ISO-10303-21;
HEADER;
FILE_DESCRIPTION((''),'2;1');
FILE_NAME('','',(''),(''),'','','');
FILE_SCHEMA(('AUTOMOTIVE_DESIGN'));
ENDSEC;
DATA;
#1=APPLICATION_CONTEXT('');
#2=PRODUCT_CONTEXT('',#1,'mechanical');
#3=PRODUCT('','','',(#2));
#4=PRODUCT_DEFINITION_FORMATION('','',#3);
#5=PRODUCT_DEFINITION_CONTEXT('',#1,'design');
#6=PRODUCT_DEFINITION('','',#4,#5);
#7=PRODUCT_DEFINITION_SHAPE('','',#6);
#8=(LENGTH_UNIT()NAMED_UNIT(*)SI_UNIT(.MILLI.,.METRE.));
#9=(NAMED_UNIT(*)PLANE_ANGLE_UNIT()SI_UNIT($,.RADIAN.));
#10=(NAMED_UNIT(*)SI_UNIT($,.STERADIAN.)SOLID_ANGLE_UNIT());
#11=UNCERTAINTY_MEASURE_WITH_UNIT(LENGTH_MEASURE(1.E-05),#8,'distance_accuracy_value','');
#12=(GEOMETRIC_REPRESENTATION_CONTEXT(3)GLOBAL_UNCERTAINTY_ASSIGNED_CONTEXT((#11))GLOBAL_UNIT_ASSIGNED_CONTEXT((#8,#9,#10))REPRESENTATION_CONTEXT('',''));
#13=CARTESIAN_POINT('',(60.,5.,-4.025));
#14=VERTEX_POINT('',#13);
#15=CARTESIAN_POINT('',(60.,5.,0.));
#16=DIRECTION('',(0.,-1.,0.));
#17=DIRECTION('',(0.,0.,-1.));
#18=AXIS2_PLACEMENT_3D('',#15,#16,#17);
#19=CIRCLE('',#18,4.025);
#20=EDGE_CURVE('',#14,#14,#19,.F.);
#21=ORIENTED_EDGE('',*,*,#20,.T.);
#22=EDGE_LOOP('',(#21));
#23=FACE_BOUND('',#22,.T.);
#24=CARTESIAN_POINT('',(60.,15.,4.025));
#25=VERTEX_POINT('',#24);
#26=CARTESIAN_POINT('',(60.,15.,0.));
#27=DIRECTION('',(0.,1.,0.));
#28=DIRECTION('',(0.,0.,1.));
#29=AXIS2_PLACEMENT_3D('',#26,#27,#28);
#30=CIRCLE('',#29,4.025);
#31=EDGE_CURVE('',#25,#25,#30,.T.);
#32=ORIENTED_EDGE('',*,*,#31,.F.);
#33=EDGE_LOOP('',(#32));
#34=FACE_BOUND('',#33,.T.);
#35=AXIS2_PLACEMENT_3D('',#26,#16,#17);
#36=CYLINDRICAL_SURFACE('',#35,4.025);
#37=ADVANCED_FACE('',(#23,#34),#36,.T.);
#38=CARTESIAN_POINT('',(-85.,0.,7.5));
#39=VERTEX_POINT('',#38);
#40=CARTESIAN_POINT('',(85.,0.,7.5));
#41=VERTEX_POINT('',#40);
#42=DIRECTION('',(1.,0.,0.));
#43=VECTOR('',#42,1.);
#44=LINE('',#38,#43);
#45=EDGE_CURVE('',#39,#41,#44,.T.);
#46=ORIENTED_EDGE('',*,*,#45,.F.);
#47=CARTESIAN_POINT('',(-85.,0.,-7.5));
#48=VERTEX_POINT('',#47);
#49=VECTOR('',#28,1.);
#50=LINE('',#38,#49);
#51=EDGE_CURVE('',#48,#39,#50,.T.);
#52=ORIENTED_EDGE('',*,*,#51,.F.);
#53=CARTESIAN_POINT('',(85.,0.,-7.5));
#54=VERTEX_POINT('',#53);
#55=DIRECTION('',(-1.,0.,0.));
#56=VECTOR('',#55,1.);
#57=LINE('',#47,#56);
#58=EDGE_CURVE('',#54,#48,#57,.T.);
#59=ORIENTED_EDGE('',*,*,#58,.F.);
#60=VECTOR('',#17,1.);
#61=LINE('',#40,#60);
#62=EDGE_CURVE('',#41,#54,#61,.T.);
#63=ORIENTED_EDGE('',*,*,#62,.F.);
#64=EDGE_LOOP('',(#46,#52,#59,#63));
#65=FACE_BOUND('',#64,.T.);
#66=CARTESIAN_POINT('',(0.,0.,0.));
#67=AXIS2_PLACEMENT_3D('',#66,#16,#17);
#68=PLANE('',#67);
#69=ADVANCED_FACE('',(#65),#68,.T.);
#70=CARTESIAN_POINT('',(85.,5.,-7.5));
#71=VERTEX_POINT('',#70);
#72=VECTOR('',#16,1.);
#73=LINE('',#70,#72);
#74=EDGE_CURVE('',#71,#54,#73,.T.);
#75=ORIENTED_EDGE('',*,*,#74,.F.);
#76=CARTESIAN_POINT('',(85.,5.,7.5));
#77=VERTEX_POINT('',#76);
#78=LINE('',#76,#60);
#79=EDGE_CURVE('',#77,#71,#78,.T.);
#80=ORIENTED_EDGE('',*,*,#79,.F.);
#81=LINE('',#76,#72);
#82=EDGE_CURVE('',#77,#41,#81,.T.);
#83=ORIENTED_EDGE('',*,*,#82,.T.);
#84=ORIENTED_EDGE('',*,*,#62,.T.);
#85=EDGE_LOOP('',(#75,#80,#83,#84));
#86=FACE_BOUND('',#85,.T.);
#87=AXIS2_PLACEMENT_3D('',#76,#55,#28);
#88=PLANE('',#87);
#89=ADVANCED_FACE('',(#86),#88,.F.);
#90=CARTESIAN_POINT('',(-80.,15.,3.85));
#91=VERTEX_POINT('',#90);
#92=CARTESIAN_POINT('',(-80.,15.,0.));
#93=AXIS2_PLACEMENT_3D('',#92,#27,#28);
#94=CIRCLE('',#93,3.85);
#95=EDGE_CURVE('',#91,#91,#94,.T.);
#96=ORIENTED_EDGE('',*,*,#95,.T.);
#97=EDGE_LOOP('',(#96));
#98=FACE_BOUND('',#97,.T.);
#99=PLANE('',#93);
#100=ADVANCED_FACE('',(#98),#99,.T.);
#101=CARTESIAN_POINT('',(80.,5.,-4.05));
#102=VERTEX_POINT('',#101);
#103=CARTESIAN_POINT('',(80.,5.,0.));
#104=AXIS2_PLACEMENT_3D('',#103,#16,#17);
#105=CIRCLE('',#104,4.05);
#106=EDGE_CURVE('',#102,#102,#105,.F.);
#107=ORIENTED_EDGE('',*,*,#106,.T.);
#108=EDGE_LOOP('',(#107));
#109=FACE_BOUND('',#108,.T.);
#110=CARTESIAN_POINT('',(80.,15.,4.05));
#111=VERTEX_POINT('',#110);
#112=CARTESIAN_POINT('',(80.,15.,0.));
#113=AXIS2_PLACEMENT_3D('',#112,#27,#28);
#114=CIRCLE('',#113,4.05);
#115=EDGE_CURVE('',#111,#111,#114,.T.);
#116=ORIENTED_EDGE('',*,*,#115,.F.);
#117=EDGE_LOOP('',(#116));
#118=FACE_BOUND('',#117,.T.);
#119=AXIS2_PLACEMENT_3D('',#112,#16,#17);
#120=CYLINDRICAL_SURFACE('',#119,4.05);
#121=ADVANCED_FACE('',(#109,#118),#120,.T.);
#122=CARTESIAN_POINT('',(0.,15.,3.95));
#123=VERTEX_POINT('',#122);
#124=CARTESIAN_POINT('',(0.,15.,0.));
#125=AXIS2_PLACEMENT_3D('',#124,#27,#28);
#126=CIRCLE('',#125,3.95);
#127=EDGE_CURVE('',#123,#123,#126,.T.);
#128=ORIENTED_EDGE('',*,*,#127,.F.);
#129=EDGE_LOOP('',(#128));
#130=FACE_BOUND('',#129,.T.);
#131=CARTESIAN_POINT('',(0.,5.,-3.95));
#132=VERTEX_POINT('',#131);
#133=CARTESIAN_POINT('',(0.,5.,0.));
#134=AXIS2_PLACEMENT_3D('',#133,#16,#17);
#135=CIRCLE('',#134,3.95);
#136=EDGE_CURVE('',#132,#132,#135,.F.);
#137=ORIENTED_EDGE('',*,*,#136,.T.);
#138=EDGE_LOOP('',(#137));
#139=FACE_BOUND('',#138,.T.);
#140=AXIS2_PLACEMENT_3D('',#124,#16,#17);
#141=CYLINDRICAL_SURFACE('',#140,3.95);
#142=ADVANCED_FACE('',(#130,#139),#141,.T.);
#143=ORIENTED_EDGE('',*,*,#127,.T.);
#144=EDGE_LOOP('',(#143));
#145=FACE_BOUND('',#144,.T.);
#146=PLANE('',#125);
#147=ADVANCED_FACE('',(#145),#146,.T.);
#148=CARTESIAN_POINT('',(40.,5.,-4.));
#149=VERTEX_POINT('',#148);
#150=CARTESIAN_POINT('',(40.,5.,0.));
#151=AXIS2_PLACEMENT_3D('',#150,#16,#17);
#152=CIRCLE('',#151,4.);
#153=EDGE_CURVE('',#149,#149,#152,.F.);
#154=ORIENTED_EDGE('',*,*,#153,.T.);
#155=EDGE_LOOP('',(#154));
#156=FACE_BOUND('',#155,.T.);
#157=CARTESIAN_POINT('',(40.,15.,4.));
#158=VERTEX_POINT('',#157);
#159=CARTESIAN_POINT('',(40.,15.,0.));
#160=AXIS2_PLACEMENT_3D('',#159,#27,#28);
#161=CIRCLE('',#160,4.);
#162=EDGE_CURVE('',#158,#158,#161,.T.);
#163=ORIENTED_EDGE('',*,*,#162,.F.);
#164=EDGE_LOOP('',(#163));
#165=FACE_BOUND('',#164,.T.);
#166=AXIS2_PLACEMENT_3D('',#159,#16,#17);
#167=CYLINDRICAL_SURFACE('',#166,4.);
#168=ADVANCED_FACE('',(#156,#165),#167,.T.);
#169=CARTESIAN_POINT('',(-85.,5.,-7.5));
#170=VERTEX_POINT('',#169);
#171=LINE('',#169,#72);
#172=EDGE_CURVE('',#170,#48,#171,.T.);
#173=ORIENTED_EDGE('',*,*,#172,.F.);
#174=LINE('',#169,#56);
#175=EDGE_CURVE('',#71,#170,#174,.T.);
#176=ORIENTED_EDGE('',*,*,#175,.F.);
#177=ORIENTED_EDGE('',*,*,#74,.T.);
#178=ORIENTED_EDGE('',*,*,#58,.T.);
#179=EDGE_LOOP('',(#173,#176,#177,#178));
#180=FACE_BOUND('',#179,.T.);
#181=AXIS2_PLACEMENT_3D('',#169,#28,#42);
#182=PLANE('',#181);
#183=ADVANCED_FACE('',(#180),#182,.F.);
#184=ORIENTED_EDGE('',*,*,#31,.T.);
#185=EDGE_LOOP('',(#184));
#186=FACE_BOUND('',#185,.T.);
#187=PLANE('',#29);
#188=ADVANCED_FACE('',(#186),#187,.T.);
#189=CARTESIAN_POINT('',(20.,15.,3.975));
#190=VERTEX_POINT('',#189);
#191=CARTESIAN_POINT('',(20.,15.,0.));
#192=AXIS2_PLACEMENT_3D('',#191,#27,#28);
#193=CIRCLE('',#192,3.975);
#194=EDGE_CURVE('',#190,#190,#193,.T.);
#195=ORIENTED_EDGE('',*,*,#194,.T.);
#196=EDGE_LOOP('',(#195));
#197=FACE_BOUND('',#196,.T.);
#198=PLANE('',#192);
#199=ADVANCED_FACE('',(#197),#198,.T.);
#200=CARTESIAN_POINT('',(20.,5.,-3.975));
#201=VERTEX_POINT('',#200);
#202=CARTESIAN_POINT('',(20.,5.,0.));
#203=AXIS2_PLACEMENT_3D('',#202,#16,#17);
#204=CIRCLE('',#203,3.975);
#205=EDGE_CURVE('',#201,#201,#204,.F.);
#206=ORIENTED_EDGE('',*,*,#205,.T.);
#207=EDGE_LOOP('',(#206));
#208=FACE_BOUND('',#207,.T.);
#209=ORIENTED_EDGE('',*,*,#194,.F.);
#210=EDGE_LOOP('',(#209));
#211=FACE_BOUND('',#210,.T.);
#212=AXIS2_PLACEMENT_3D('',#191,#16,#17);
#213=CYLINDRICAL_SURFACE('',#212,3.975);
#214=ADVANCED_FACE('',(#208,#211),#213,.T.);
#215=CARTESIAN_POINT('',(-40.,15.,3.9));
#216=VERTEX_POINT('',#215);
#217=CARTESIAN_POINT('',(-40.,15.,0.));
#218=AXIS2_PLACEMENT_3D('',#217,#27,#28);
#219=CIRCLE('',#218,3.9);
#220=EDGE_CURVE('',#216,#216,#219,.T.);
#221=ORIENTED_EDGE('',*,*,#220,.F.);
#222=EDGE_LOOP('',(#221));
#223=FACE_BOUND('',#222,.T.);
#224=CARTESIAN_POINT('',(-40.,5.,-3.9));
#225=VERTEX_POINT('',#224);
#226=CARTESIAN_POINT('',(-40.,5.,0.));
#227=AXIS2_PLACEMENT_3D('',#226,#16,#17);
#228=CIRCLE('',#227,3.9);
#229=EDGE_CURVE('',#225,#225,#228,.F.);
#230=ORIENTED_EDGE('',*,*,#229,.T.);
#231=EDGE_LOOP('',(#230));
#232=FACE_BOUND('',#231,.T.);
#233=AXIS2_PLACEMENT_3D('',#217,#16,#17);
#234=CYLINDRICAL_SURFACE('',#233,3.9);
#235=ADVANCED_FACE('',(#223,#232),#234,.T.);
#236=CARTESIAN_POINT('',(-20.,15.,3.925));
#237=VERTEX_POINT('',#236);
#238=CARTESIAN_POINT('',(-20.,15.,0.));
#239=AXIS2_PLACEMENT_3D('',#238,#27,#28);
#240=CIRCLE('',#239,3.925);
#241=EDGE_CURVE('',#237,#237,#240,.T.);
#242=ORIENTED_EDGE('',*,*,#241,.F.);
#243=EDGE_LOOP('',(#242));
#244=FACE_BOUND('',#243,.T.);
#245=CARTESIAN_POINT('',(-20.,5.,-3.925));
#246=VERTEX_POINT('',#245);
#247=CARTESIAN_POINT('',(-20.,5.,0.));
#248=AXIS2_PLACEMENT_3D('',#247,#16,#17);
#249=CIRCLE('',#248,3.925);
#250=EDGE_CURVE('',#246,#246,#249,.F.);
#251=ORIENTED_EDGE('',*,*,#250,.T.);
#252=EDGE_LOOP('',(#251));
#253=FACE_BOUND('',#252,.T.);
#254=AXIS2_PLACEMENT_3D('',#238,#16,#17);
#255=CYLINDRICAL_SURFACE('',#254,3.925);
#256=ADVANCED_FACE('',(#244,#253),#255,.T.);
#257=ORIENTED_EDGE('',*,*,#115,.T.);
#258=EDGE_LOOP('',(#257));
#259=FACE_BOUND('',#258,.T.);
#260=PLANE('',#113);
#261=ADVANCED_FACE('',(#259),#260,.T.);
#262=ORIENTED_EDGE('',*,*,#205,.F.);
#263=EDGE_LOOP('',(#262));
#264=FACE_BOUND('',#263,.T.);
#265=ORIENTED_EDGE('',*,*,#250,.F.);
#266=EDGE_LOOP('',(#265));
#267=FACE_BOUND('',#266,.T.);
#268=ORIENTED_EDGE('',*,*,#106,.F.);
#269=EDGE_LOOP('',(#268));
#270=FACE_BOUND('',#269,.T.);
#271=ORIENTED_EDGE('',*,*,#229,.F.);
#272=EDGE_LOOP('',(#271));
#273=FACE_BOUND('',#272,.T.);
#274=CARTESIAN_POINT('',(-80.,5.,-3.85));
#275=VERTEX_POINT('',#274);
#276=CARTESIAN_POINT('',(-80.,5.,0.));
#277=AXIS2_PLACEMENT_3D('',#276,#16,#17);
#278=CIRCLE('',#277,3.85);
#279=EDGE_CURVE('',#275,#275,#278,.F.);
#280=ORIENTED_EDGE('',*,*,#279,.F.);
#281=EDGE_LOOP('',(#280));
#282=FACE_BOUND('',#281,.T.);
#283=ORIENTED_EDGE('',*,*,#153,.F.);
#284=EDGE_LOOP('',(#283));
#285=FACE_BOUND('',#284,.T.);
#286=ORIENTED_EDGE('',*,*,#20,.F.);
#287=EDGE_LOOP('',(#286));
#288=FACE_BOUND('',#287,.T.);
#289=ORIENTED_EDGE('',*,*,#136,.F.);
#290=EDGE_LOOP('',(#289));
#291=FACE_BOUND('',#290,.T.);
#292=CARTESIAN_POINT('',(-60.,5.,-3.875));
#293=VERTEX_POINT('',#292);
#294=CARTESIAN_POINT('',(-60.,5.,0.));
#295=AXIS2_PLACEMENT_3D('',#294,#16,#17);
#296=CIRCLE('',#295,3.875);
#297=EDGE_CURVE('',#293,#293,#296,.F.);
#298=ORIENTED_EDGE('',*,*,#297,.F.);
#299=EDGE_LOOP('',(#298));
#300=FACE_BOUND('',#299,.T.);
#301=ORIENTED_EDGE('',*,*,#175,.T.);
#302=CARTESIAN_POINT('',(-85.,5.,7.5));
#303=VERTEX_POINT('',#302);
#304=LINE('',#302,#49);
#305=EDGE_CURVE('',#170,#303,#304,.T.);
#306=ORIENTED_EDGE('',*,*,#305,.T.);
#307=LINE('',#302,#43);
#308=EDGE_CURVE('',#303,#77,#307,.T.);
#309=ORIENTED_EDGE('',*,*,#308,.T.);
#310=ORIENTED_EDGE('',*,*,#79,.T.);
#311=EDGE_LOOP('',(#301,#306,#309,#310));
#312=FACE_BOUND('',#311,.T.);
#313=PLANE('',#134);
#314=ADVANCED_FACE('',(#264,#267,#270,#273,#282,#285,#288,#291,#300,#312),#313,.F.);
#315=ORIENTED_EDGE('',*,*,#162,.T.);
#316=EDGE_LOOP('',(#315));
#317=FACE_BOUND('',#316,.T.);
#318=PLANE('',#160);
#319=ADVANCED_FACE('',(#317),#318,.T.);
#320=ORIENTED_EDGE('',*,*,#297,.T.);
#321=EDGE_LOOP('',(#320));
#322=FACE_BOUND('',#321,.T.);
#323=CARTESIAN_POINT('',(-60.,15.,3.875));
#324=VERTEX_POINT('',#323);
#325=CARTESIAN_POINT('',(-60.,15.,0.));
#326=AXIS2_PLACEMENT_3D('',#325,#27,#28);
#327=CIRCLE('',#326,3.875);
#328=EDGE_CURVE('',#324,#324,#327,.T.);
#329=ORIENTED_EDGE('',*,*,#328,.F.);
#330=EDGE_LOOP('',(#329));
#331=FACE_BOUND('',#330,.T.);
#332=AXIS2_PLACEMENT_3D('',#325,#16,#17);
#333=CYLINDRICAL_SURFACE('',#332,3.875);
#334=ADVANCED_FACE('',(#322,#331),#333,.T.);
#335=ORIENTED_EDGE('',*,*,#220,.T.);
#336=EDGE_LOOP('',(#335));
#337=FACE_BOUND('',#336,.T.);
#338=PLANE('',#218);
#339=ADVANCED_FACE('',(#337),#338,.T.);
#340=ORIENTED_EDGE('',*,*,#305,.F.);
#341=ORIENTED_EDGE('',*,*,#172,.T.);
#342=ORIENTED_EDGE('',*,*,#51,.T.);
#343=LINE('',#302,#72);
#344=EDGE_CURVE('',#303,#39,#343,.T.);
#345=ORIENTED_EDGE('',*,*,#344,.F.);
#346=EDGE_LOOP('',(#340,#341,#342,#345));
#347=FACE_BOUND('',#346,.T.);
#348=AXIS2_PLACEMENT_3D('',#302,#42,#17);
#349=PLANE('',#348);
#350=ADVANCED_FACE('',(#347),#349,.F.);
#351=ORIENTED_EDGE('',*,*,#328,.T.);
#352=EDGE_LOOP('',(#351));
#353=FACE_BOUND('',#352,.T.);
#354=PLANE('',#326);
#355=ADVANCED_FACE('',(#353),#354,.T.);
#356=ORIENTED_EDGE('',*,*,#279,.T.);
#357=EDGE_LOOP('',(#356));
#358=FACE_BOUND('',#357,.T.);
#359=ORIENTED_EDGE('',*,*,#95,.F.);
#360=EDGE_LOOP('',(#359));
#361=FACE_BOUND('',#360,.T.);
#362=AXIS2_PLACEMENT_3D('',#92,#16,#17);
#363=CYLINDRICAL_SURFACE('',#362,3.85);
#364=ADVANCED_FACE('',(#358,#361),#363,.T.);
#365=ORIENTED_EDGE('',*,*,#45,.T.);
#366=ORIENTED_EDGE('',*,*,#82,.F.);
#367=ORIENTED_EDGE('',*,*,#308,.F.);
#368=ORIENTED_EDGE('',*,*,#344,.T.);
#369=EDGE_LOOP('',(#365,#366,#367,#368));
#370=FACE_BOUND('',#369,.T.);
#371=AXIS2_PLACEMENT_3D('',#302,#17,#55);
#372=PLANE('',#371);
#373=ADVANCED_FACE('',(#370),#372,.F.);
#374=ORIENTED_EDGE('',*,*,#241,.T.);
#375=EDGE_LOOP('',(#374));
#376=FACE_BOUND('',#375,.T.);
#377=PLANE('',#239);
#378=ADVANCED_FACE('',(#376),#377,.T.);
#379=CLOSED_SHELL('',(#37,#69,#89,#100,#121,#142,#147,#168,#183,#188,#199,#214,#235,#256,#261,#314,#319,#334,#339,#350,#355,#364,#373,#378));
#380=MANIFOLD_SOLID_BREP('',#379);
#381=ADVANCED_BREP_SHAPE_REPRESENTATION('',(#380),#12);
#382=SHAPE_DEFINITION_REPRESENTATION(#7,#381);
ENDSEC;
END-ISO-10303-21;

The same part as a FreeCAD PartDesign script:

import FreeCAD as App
import Part
import Sketcher

V = App.Vector
Q = App.Units.Quantity


def add_polygon(sketch, points):
    """Adds a closed chain of lines whose ends are joined by coincident constraints."""
    first, n = sketch.GeometryCount, len(points)
    for a, b in zip(points, points[1:] + points[:1]):
        sketch.addGeometry(Part.LineSegment(App.Vector(*a, 0), App.Vector(*b, 0)), False)
    for i in range(n):
        sketch.addConstraint(Sketcher.Constraint("Coincident", first + i, 2, first + (i + 1) % n, 1))

doc = App.newDocument("Part")
body = doc.addObject("PartDesign::Body", "Body")

sketch1 = body.newObject("Sketcher::SketchObject", "Sketch")
sketch1.AttachmentSupport = (doc.getObject("XZ_Plane"), [""])
sketch1.MapMode = "FlatFace"
add_polygon(sketch1, [(-85, -8), (-85, 8), (85, 8), (85, -8)])
sketch1.addConstraint([
    Sketcher.Constraint("Vertical", 0),
    Sketcher.Constraint("Horizontal", 1),
    Sketcher.Constraint("Vertical", 2),
    Sketcher.Constraint("Horizontal", 3),
    Sketcher.Constraint("Symmetric", 0, 2, 2, 2, -1, 1),
    Sketcher.Constraint("DistanceX", 1, 1, 1, 2, Q("170 mm")),
    Sketcher.Constraint("DistanceY", 0, 1, 0, 2, Q("15 mm")),
])
pad1 = body.newObject("PartDesign::Pad", "Pad")
pad1.Profile = sketch1
pad1.Length = 5
pad1.Reversed = True

sketch2 = body.newObject("Sketcher::SketchObject", "Sketch001")
sketch2.AttachmentSupport = (doc.getObject("XZ_Plane"), [""])
sketch2.MapMode = "FlatFace"
sketch2.AttachmentOffset = App.Placement(V(0, 0, -5), App.Rotation())
sketch2.addGeometry([
    Part.Circle(V(-80, 0, 0), V(0, 0, 1), 3.9),
    Part.Circle(V(-60, 0, 0), V(0, 0, 1), 3.9),
    Part.Circle(V(-40, 0, 0), V(0, 0, 1), 3.9),
    Part.Circle(V(-20, 0, 0), V(0, 0, 1), 3.9),
    Part.Circle(V(0, 0, 0), V(0, 0, 1), 4),
    Part.Circle(V(20, 0, 0), V(0, 0, 1), 4),
    Part.Circle(V(40, 0, 0), V(0, 0, 1), 4),
    Part.Circle(V(60, 0, 0), V(0, 0, 1), 4),
    Part.Circle(V(80, 0, 0), V(0, 0, 1), 4),
], False)
sketch2.addConstraint([
    Sketcher.Constraint("Coincident", 4, 3, -1, 1),
    Sketcher.Constraint("Symmetric", 3, 3, 5, 3, -1, 1),
    Sketcher.Constraint("Symmetric", 2, 3, 6, 3, -1, 1),
    Sketcher.Constraint("Symmetric", 1, 3, 7, 3, -1, 1),
    Sketcher.Constraint("Symmetric", 0, 3, 8, 3, -1, 1),
    Sketcher.Constraint("PointOnObject", 0, 3, -1),
    Sketcher.Constraint("PointOnObject", 1, 3, -1),
    Sketcher.Constraint("PointOnObject", 2, 3, -1),
    Sketcher.Constraint("PointOnObject", 3, 3, -1),
    Sketcher.Constraint("Diameter", 6, Q("8 mm")),
    Sketcher.Constraint("Diameter", 0, Q("7.7 mm")),
    Sketcher.Constraint("Diameter", 2, Q("7.8 mm")),
    Sketcher.Constraint("Diameter", 4, Q("7.9 mm")),
    Sketcher.Constraint("Diameter", 8, Q("8.1 mm")),
    Sketcher.Constraint("Diameter", 1, Q("7.75 mm")),
    Sketcher.Constraint("Diameter", 3, Q("7.85 mm")),
    Sketcher.Constraint("Diameter", 5, Q("7.95 mm")),
    Sketcher.Constraint("Diameter", 7, Q("8.05 mm")),
    Sketcher.Constraint("DistanceX", 0, 3, -1, 1, Q("80 mm")),
    Sketcher.Constraint("DistanceX", 1, 3, -1, 1, Q("60 mm")),
    Sketcher.Constraint("DistanceX", 2, 3, -1, 1, Q("40 mm")),
    Sketcher.Constraint("DistanceX", 3, 3, -1, 1, Q("20 mm")),
])
pad2 = body.newObject("PartDesign::Pad", "Pad001")
pad2.Profile = sketch2
pad2.Length = 10
pad2.Reversed = True

doc.recompute()
